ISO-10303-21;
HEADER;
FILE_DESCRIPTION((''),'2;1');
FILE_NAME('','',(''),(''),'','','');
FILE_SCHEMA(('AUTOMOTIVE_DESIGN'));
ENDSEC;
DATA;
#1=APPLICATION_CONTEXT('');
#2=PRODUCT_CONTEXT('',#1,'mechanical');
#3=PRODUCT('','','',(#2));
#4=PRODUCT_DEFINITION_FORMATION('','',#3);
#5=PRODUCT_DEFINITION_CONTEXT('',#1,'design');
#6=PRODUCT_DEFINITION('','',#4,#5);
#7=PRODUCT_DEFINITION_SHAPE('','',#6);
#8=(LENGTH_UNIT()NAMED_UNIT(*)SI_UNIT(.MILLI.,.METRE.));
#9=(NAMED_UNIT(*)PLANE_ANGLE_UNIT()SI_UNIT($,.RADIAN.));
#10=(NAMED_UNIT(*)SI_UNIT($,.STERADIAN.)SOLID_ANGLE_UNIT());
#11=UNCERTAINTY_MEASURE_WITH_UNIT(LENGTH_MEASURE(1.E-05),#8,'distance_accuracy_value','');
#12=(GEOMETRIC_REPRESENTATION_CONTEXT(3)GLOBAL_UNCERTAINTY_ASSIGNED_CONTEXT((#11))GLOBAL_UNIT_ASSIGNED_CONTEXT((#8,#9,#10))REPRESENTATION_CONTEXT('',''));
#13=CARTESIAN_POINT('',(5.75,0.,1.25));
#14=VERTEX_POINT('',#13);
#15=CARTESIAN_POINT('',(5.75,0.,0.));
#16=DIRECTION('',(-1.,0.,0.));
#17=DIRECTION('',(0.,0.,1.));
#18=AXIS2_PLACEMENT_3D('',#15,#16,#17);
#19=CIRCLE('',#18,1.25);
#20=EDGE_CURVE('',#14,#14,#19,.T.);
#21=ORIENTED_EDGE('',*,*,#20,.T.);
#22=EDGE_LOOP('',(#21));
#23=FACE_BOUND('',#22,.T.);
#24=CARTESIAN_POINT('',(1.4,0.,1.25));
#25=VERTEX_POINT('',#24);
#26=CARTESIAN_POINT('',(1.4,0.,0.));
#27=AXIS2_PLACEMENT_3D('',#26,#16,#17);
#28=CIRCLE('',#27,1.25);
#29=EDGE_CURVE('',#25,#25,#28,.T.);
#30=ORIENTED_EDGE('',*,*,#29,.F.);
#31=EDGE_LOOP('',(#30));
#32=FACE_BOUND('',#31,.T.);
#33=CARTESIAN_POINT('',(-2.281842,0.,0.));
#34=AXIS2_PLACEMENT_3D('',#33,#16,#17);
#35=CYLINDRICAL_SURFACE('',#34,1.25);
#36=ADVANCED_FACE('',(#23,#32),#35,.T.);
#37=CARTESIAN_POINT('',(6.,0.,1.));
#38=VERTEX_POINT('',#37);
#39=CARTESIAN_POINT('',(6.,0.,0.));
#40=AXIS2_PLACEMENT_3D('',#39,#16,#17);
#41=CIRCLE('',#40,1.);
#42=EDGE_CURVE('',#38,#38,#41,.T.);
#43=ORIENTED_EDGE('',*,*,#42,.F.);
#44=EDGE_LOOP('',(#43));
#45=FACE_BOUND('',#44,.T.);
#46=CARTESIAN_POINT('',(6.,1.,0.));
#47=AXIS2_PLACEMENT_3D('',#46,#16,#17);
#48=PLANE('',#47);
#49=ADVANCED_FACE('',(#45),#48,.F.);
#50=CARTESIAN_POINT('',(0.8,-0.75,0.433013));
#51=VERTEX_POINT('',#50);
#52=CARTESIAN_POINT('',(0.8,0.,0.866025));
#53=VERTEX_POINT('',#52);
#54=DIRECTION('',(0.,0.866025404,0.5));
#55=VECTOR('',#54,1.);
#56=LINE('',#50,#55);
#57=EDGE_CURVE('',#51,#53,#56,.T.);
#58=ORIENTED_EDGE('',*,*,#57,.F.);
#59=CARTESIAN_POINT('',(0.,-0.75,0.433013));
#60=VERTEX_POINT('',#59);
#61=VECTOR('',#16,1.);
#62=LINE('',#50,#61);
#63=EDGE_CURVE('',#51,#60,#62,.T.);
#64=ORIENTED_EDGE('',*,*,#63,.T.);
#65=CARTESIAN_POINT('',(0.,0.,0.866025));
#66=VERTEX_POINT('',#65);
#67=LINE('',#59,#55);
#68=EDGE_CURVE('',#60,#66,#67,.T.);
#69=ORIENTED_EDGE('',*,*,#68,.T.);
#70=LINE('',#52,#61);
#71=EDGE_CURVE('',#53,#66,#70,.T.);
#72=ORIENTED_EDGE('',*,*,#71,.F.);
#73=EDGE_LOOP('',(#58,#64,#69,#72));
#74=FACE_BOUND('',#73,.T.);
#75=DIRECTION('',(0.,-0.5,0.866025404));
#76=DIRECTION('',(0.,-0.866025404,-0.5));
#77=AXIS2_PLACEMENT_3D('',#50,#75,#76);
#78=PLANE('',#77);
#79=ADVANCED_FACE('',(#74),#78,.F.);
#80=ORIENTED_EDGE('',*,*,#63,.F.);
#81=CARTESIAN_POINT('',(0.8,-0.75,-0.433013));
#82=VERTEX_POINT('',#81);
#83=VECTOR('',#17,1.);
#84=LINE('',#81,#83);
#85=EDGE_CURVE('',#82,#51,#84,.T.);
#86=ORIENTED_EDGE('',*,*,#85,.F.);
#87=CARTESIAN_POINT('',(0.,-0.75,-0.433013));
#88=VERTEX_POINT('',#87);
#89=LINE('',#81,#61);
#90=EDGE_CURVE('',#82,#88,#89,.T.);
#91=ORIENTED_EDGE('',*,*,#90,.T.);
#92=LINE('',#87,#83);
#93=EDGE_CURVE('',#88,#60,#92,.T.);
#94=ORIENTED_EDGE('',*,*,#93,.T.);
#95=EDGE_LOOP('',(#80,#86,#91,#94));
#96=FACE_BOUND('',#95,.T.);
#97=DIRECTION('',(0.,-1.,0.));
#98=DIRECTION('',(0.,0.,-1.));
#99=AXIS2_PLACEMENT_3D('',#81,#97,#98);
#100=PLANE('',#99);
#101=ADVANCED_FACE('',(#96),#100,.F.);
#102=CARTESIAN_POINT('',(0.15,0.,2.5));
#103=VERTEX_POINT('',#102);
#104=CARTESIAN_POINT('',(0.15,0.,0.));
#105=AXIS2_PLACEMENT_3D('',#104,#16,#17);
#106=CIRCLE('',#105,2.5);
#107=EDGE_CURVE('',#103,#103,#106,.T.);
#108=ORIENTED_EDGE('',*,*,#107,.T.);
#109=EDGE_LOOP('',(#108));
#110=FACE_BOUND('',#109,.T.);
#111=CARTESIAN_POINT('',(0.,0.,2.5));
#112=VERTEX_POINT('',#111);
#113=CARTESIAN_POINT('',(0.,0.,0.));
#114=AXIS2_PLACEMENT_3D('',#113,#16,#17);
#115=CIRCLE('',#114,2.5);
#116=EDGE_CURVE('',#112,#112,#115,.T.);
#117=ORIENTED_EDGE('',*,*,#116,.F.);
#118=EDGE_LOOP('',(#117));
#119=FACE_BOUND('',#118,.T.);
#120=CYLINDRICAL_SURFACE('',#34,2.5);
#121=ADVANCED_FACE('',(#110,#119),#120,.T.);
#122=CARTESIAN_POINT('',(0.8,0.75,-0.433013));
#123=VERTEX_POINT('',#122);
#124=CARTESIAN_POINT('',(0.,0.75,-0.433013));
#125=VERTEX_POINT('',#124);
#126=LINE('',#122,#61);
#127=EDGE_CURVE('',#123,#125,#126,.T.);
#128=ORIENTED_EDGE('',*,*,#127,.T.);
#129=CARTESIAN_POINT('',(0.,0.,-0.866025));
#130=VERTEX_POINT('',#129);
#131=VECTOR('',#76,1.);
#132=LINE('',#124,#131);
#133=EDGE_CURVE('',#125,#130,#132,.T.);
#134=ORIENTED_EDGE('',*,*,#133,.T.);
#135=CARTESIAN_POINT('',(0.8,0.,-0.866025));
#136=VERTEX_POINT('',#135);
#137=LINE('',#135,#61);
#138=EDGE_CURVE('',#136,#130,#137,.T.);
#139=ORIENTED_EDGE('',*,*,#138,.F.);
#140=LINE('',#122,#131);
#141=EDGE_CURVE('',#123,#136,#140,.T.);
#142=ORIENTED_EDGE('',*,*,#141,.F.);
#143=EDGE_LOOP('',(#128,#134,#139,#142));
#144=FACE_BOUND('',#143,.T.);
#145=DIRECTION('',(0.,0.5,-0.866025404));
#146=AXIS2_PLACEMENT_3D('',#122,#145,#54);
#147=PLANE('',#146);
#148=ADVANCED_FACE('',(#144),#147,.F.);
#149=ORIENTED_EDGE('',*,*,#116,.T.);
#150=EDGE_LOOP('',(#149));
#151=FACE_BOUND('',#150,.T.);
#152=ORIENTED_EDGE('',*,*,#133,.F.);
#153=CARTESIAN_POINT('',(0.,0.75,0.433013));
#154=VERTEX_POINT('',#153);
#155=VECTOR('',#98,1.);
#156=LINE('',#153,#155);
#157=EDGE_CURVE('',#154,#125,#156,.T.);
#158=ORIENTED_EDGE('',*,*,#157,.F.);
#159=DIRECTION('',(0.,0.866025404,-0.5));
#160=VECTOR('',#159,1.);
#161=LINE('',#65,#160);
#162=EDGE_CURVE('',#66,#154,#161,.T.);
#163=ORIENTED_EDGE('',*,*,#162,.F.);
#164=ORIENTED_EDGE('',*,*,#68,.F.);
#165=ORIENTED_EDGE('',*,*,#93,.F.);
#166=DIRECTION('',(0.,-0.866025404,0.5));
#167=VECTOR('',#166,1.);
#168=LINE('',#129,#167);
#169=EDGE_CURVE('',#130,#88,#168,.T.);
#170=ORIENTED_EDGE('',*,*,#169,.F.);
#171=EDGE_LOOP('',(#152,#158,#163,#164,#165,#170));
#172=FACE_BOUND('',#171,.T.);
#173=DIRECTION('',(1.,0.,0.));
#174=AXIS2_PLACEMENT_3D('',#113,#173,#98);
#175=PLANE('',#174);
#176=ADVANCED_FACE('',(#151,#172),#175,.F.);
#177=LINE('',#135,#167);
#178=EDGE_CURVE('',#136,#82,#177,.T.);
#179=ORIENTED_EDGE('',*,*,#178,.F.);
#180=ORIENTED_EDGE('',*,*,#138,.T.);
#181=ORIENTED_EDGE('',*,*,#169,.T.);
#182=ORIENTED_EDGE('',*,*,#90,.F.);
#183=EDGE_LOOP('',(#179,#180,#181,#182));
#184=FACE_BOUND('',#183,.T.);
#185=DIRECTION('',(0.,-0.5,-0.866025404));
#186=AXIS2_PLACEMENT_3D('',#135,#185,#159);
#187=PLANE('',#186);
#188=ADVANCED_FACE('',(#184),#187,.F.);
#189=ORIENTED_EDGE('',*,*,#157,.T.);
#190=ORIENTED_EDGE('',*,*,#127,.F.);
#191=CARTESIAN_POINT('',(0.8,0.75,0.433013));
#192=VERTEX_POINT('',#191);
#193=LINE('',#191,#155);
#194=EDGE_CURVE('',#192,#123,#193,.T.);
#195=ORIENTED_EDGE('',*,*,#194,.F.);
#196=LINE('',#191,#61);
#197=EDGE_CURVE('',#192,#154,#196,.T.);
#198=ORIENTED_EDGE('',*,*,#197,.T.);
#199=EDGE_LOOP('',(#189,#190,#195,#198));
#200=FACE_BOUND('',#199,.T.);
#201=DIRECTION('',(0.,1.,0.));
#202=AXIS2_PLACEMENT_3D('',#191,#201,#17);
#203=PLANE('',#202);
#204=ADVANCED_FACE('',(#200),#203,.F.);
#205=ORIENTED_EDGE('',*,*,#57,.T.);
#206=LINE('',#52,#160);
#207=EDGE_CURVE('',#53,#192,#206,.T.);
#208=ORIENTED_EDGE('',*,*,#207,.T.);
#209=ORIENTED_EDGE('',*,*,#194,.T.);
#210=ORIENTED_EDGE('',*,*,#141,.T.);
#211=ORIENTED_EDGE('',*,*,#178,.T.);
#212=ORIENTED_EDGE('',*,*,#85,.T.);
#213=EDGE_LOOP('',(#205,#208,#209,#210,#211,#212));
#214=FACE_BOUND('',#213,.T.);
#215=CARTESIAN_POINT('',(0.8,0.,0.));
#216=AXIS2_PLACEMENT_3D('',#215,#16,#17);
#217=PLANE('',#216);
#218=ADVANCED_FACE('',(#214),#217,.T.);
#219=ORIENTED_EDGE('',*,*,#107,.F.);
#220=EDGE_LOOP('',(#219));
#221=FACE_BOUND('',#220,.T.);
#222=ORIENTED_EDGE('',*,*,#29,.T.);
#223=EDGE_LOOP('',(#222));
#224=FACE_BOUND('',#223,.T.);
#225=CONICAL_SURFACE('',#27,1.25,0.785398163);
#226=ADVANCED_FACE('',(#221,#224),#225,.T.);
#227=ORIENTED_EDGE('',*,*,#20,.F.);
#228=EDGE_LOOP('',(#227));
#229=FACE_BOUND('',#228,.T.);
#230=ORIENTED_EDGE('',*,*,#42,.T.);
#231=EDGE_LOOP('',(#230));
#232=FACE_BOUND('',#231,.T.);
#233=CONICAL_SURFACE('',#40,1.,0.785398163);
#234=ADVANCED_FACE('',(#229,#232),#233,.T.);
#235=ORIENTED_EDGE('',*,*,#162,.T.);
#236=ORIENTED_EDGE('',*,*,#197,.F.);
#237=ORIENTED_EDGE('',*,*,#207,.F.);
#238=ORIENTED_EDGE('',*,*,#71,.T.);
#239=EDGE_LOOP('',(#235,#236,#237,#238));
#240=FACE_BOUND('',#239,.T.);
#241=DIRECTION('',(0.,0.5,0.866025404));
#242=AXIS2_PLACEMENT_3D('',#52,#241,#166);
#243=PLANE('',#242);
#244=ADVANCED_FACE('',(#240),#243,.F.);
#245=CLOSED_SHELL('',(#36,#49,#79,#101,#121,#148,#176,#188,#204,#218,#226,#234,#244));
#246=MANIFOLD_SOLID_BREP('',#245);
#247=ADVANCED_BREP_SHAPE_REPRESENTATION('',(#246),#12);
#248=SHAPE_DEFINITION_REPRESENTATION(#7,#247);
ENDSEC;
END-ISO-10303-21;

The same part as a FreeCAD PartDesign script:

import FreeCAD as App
import Part
import Sketcher

V = App.Vector
Q = App.Units.Quantity


def add_polygon(sketch, points):
    """Adds a closed chain of lines whose ends are joined by coincident constraints."""
    first, n = sketch.GeometryCount, len(points)
    for a, b in zip(points, points[1:] + points[:1]):
        sketch.addGeometry(Part.LineSegment(App.Vector(*a, 0), App.Vector(*b, 0)), False)
    for i in range(n):
        sketch.addConstraint(Sketcher.Constraint("Coincident", first + i, 2, first + (i + 1) % n, 1))

doc = App.newDocument("Part")
body = doc.addObject("PartDesign::Body", "Body")

# Sketch on XY plane
sketch1 = body.newObject("Sketcher::SketchObject", "Sketch")
sketch1.AttachmentSupport = (doc.getObject("XY_Plane"), [""])
sketch1.MapMode = "FlatFace"
add_polygon(sketch1, [(0, 2.5), (0, 0), (6, 0), (6, 1), (5.75, 1.25), (1.4, 1.25), (0.15, 2.5)])  # lines 0-6
sketch1.addConstraint(Sketcher.Constraint("Vertical", 0))
sketch1.addConstraint(Sketcher.Constraint("Horizontal", 1))
sketch1.addConstraint(Sketcher.Constraint("Vertical", 2))
sketch1.addConstraint(Sketcher.Constraint("Horizontal", 4))
sketch1.addConstraint(Sketcher.Constraint("Horizontal", 6))
sketch1.addConstraint(Sketcher.Constraint("Coincident", 0, 2, -1, 1))
sketch1.addConstraint(Sketcher.Constraint("Parallel", 3, 5))
sketch1.addConstraint(Sketcher.Constraint("DistanceX", 1, 1, 1, 2, Q("6 mm")))
sketch1.addConstraint(Sketcher.Constraint("DistanceY", 2, 1, 2, 2, Q("1 mm")))
sketch1.addConstraint(Sketcher.Constraint("Angle", 3, Q("135 deg")))
sketch1.addConstraint(Sketcher.Constraint("DistanceY", 0, 2, 0, 1, Q("2.5 mm")))
sketch1.addConstraint(Sketcher.Constraint("DistanceX", 4, 2, 4, 1, Q("4.35 mm")))
sketch1.addConstraint(Sketcher.Constraint("DistanceX", -1, 1, 4, 2, Q("1.4 mm")))
revolution = body.newObject("PartDesign::Revolution", "Revolution")
revolution.Profile = sketch1
revolution.ReferenceAxis = (sketch1, ["H_Axis"])
revolution.Angle = 360

# Sketch on YZ plane
sketch2 = body.newObject("Sketcher::SketchObject", "Sketch001")
sketch2.AttachmentSupport = (doc.getObject("YZ_Plane"), [""])
sketch2.MapMode = "FlatFace"
add_polygon(sketch2, [(-0.75, 0.433013), (0, 0.866025), (0.75, 0.433013), (0.75, -0.433013), (0, -0.866025), (-0.75, -0.433013)])  # lines 0-5
sketch2.addConstraint(Sketcher.Constraint("Vertical", 2))
sketch2.addConstraint(Sketcher.Constraint("Vertical", 5))
sketch2.addConstraint(Sketcher.Constraint("Symmetric", 0, 2, 3, 2, -1, 1))
sketch2.addConstraint(Sketcher.Constraint("Symmetric", 1, 2, 4, 2, -1, 1))
sketch2.addConstraint(Sketcher.Constraint("PointOnObject", 0, 2, -2))
sketch2.addConstraint(Sketcher.Constraint("Parallel", 0, 3))
sketch2.addConstraint(Sketcher.Constraint("Horizontal", 2, 2, 4, 2))
sketch2.addConstraint(Sketcher.Constraint("Angle", 0, Q("30 deg")))
sketch2.addConstraint(Sketcher.Constraint("DistanceX", 4, 2, 2, 2, Q("1.5 mm")))
sketch2.addConstraint(Sketcher.Constraint("DistanceY", 2, 2, 2, 1, Q("0.866025 mm")))
pocket1 = body.newObject("PartDesign::Pocket", "Pocket")
pocket1.Profile = sketch2
pocket1.Length = 0.8
pocket1.Reversed = True

doc.recompute()
